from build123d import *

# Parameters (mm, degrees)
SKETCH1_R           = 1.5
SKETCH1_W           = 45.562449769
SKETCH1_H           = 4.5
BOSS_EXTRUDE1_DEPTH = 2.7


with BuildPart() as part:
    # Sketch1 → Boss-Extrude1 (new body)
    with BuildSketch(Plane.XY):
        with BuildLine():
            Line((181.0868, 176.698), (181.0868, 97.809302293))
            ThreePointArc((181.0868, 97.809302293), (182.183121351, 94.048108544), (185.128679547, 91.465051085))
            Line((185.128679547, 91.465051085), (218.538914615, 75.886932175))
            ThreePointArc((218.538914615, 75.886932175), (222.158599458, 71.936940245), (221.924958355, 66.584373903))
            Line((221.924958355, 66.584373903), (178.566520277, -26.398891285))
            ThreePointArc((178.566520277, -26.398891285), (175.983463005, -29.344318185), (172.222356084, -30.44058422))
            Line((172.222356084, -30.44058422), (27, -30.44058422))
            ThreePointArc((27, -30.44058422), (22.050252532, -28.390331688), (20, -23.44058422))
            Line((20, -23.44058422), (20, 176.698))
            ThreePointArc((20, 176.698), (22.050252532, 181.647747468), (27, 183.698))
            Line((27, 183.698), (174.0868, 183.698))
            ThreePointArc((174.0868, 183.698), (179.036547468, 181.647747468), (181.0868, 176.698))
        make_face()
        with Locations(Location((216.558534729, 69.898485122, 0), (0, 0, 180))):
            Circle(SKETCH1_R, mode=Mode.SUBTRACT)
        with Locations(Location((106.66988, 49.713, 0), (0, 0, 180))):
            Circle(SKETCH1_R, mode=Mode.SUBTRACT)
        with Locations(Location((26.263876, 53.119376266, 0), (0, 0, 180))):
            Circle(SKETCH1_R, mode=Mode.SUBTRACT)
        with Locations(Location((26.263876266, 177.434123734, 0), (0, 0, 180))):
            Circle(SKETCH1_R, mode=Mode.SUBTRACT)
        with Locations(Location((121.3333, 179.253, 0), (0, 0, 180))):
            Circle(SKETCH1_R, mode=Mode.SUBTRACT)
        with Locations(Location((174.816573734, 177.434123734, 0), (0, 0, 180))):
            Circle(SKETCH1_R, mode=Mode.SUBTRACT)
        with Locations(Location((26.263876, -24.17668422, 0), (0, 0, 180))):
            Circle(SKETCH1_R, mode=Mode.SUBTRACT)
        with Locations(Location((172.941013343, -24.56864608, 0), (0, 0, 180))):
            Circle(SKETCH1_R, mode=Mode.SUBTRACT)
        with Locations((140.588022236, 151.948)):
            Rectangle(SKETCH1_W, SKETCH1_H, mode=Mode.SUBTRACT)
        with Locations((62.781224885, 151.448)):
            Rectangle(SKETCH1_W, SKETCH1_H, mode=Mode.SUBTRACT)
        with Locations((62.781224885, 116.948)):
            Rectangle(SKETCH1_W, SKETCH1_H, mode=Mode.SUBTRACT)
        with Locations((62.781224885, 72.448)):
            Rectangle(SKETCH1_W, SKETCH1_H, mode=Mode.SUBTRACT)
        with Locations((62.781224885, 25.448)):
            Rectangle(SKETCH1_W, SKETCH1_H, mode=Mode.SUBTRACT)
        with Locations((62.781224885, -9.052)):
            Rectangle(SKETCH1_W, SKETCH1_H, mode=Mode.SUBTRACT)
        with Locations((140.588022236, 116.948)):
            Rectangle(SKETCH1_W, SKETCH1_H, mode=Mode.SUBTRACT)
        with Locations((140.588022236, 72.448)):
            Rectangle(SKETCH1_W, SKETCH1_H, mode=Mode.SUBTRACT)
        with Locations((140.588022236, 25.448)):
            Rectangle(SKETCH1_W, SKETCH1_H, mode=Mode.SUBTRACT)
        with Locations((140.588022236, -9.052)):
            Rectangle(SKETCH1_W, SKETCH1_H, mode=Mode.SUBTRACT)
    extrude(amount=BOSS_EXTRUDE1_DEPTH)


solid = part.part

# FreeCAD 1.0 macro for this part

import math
import FreeCAD as App
import Part
import Sketcher

V = App.Vector

doc = App.newDocument("Part")
body = doc.addObject("PartDesign::Body", "Body")

# Sketch on XY plane
sketch1 = body.newObject("Sketcher::SketchObject", "Sketch")
sketch1.AttachmentSupport = (doc.getObject("XY_Plane"), [""])
sketch1.MapMode = "FlatFace"
sketch1.addGeometry([
    Part.LineSegment(V(181.0868, 97.809302, 0), V(181.0868, 176.698, 0)),  # 0
    Part.ArcOfCircle(Part.Circle(V(174.0868, 176.698, 0), V(0, 0, 1), 7), math.radians(0), math.radians(90)),  # 1
    Part.LineSegment(V(174.0868, 183.698, 0), V(27, 183.698, 0)),  # 2
    Part.ArcOfCircle(Part.Circle(V(27, 176.698, 0), V(0, 0, 1), 7), math.radians(90), math.radians(180)),  # 3
    Part.LineSegment(V(20, 176.698, 0), V(20, -23.440584, 0)),  # 4
    Part.ArcOfCircle(Part.Circle(V(27, -23.440584, 0), V(0, 0, 1), 7), math.radians(-180), math.radians(-90)),  # 5
    Part.LineSegment(V(27, -30.440584, 0), V(172.222356, -30.440584, 0)),  # 6
    Part.ArcOfCircle(Part.Circle(V(172.222356, -23.440584, 0), V(0, 0, 1), 7), math.radians(-90), math.radians(-24.999812)),  # 7
    Part.LineSegment(V(178.56652, -26.398891, 0), V(221.924958, 66.584374, 0)),  # 8
    Part.ArcOfCircle(Part.Circle(V(215.580794, 69.542681, 0), V(0, 0, 1), 7), math.radians(-24.999812), math.radians(65.001873)),  # 9
    Part.LineSegment(V(218.538915, 75.886932, 0), V(185.12868, 91.465051, 0)),  # 10
    Part.ArcOfCircle(Part.Circle(V(188.0868, 97.809302, 0), V(0, 0, 1), 7), math.radians(180), math.radians(245.001873)),  # 11
    Part.Circle(V(172.941013, -24.568646, 0), V(0, 0, 1), 1.5),  # 12
    Part.LineSegment(V(117.806797, -11.302, 0), V(117.806797, -6.802, 0)),  # 13
    Part.LineSegment(V(117.806797, -6.802, 0), V(163.369247, -6.802, 0)),  # 14
    Part.LineSegment(V(163.369247, -6.802, 0), V(163.369247, -11.302, 0)),  # 15
    Part.LineSegment(V(163.369247, -11.302, 0), V(117.806797, -11.302, 0)),  # 16
    Part.LineSegment(V(117.806797, 23.198, 0), V(117.806797, 27.698, 0)),  # 17
    Part.LineSegment(V(117.806797, 27.698, 0), V(163.369247, 27.698, 0)),  # 18
    Part.LineSegment(V(163.369247, 27.698, 0), V(163.369247, 23.198, 0)),  # 19
    Part.LineSegment(V(163.369247, 23.198, 0), V(117.806797, 23.198, 0)),  # 20
    Part.Circle(V(216.558535, 69.898485, 0), V(0, 0, 1), 1.5),  # 21
    Part.LineSegment(V(117.806797, 70.198, 0), V(117.806797, 74.698, 0)),  # 22
    Part.LineSegment(V(117.806797, 74.698, 0), V(163.369247, 74.698, 0)),  # 23
    Part.LineSegment(V(163.369247, 74.698, 0), V(163.369247, 70.198, 0)),  # 24
    Part.LineSegment(V(163.369247, 70.198, 0), V(117.806797, 70.198, 0)),  # 25
    Part.LineSegment(V(40, -11.302, 0), V(40, -6.802, 0)),  # 26
    Part.LineSegment(V(40, -6.802, 0), V(85.56245, -6.802, 0)),  # 27
    Part.LineSegment(V(85.56245, -6.802, 0), V(85.56245, -11.302, 0)),  # 28
    Part.LineSegment(V(85.56245, -11.302, 0), V(40, -11.302, 0)),  # 29
    Part.Circle(V(26.263876, -24.176684, 0), V(0, 0, 1), 1.5),  # 30
    Part.LineSegment(V(40, 23.198, 0), V(40, 27.698, 0)),  # 31
    Part.LineSegment(V(40, 27.698, 0), V(85.56245, 27.698, 0)),  # 32
    Part.LineSegment(V(85.56245, 27.698, 0), V(85.56245, 23.198, 0)),  # 33
    Part.LineSegment(V(85.56245, 23.198, 0), V(40, 23.198, 0)),  # 34
    Part.Circle(V(106.66988, 49.713, 0), V(0, 0, 1), 1.5),  # 35
    Part.LineSegment(V(40, 70.198, 0), V(40, 74.698, 0)),  # 36
    Part.LineSegment(V(40, 74.698, 0), V(85.56245, 74.698, 0)),  # 37
    Part.LineSegment(V(85.56245, 74.698, 0), V(85.56245, 70.198, 0)),  # 38
    Part.LineSegment(V(85.56245, 70.198, 0), V(40, 70.198, 0)),  # 39
    Part.Circle(V(26.263876, 53.119376, 0), V(0, 0, 1), 1.5),  # 40
    Part.LineSegment(V(117.806797, 114.698, 0), V(117.806797, 119.198, 0)),  # 41
    Part.LineSegment(V(117.806797, 119.198, 0), V(163.369247, 119.198, 0)),  # 42
    Part.LineSegment(V(163.369247, 119.198, 0), V(163.369247, 114.698, 0)),  # 43
    Part.LineSegment(V(163.369247, 114.698, 0), V(117.806797, 114.698, 0)),  # 44
    Part.Circle(V(174.816574, 177.434124, 0), V(0, 0, 1), 1.5),  # 45
    Part.LineSegment(V(117.806797, 149.698, 0), V(117.806797, 154.198, 0)),  # 46
    Part.LineSegment(V(117.806797, 154.198, 0), V(163.369247, 154.198, 0)),  # 47
    Part.LineSegment(V(163.369247, 154.198, 0), V(163.369247, 149.698, 0)),  # 48
    Part.LineSegment(V(163.369247, 149.698, 0), V(117.806797, 149.698, 0)),  # 49
    Part.LineSegment(V(40, 114.698, 0), V(40, 119.198, 0)),  # 50
    Part.LineSegment(V(40, 119.198, 0), V(85.56245, 119.198, 0)),  # 51
    Part.LineSegment(V(85.56245, 119.198, 0), V(85.56245, 114.698, 0)),  # 52
    Part.LineSegment(V(85.56245, 114.698, 0), V(40, 114.698, 0)),  # 53
    Part.Circle(V(121.3333, 179.253, 0), V(0, 0, 1), 1.5),  # 54
    Part.LineSegment(V(40, 149.198, 0), V(40, 153.698, 0)),  # 55
    Part.LineSegment(V(40, 153.698, 0), V(85.56245, 153.698, 0)),  # 56
    Part.LineSegment(V(85.56245, 153.698, 0), V(85.56245, 149.198, 0)),  # 57
    Part.LineSegment(V(85.56245, 149.198, 0), V(40, 149.198, 0)),  # 58
    Part.Circle(V(26.263876, 177.434124, 0), V(0, 0, 1), 1.5),  # 59
], False)
sketch1.addConstraint([
    Sketcher.Constraint("Tangent", 0, 2, 1, 1),
    Sketcher.Constraint("Tangent", 1, 2, 2, 1),
    Sketcher.Constraint("Tangent", 2, 2, 3, 1),
    Sketcher.Constraint("Tangent", 3, 2, 4, 1),
    Sketcher.Constraint("Tangent", 4, 2, 5, 1),
    Sketcher.Constraint("Tangent", 5, 2, 6, 1),
    Sketcher.Constraint("Tangent", 6, 2, 7, 1),
    Sketcher.Constraint("Tangent", 7, 2, 8, 1),
    Sketcher.Constraint("Tangent", 8, 2, 9, 1),
    Sketcher.Constraint("Tangent", 9, 2, 10, 1),
    Sketcher.Constraint("Tangent", 10, 2, 11, 2),
    Sketcher.Constraint("Tangent", 11, 1, 0, 1),
    Sketcher.Constraint("Coincident", 13, 2, 14, 1),
    Sketcher.Constraint("Coincident", 14, 2, 15, 1),
    Sketcher.Constraint("Coincident", 15, 2, 16, 1),
    Sketcher.Constraint("Coincident", 16, 2, 13, 1),
    Sketcher.Constraint("Coincident", 17, 2, 18, 1),
    Sketcher.Constraint("Coincident", 18, 2, 19, 1),
    Sketcher.Constraint("Coincident", 19, 2, 20, 1),
    Sketcher.Constraint("Coincident", 20, 2, 17, 1),
    Sketcher.Constraint("Coincident", 22, 2, 23, 1),
    Sketcher.Constraint("Coincident", 23, 2, 24, 1),
    Sketcher.Constraint("Coincident", 24, 2, 25, 1),
    Sketcher.Constraint("Coincident", 25, 2, 22, 1),
    Sketcher.Constraint("Coincident", 26, 2, 27, 1),
    Sketcher.Constraint("Coincident", 27, 2, 28, 1),
    Sketcher.Constraint("Coincident", 28, 2, 29, 1),
    Sketcher.Constraint("Coincident", 29, 2, 26, 1),
    Sketcher.Constraint("Coincident", 31, 2, 32, 1),
    Sketcher.Constraint("Coincident", 32, 2, 33, 1),
    Sketcher.Constraint("Coincident", 33, 2, 34, 1),
    Sketcher.Constraint("Coincident", 34, 2, 31, 1),
    Sketcher.Constraint("Coincident", 36, 2, 37, 1),
    Sketcher.Constraint("Coincident", 37, 2, 38, 1),
    Sketcher.Constraint("Coincident", 38, 2, 39, 1),
    Sketcher.Constraint("Coincident", 39, 2, 36, 1),
    Sketcher.Constraint("Coincident", 41, 2, 42, 1),
    Sketcher.Constraint("Coincident", 42, 2, 43, 1),
    Sketcher.Constraint("Coincident", 43, 2, 44, 1),
    Sketcher.Constraint("Coincident", 44, 2, 41, 1),
    Sketcher.Constraint("Coincident", 46, 2, 47, 1),
    Sketcher.Constraint("Coincident", 47, 2, 48, 1),
    Sketcher.Constraint("Coincident", 48, 2, 49, 1),
    Sketcher.Constraint("Coincident", 49, 2, 46, 1),
    Sketcher.Constraint("Coincident", 50, 2, 51, 1),
    Sketcher.Constraint("Coincident", 51, 2, 52, 1),
    Sketcher.Constraint("Coincident", 52, 2, 53, 1),
    Sketcher.Constraint("Coincident", 53, 2, 50, 1),
    Sketcher.Constraint("Coincident", 55, 2, 56, 1),
    Sketcher.Constraint("Coincident", 56, 2, 57, 1),
    Sketcher.Constraint("Coincident", 57, 2, 58, 1),
    Sketcher.Constraint("Coincident", 58, 2, 55, 1),
    Sketcher.Constraint("Vertical", 0),
    Sketcher.Constraint("Horizontal", 2),
    Sketcher.Constraint("Vertical", 4),
    Sketcher.Constraint("Horizontal", 6),
    Sketcher.Constraint("Vertical", 13),
    Sketcher.Constraint("Horizontal", 14),
    Sketcher.Constraint("Vertical", 15),
    Sketcher.Constraint("Horizontal", 16),
    Sketcher.Constraint("Vertical", 17),
    Sketcher.Constraint("Horizontal", 18),
    Sketcher.Constraint("Vertical", 19),
    Sketcher.Constraint("Horizontal", 20),
    Sketcher.Constraint("Vertical", 22),
    Sketcher.Constraint("Horizontal", 23),
    Sketcher.Constraint("Vertical", 24),
    Sketcher.Constraint("Horizontal", 25),
    Sketcher.Constraint("Vertical", 26),
    Sketcher.Constraint("Horizontal", 27),
    Sketcher.Constraint("Vertical", 28),
    Sketcher.Constraint("Horizontal", 29),
    Sketcher.Constraint("Vertical", 31),
    Sketcher.Constraint("Horizontal", 32),
    Sketcher.Constraint("Vertical", 33),
    Sketcher.Constraint("Horizontal", 34),
    Sketcher.Constraint("Vertical", 36),
    Sketcher.Constraint("Horizontal", 37),
    Sketcher.Constraint("Vertical", 38),
    Sketcher.Constraint("Horizontal", 39),
    Sketcher.Constraint("Vertical", 41),
    Sketcher.Constraint("Horizontal", 42),
    Sketcher.Constraint("Vertical", 43),
    Sketcher.Constraint("Horizontal", 44),
    Sketcher.Constraint("Vertical", 46),
    Sketcher.Constraint("Horizontal", 47),
    Sketcher.Constraint("Vertical", 48),
    Sketcher.Constraint("Horizontal", 49),
    Sketcher.Constraint("Vertical", 50),
    Sketcher.Constraint("Horizontal", 51),
    Sketcher.Constraint("Vertical", 52),
    Sketcher.Constraint("Horizontal", 53),
    Sketcher.Constraint("Vertical", 55),
    Sketcher.Constraint("Horizontal", 56),
    Sketcher.Constraint("Vertical", 57),
    Sketcher.Constraint("Horizontal", 58),
    Sketcher.Constraint("Equal", 1, 3),
    Sketcher.Constraint("Equal", 3, 5),
    Sketcher.Constraint("Equal", 5, 7),
    Sketcher.Constraint("Equal", 7, 9),
    Sketcher.Constraint("Equal", 9, 11),
    Sketcher.Constraint("Equal", 12, 21),
    Sketcher.Constraint("Equal", 21, 30),
    Sketcher.Constraint("Equal", 30, 35),
    Sketcher.Constraint("Equal", 35, 40),
    Sketcher.Constraint("Equal", 40, 45),
    Sketcher.Constraint("Equal", 45, 54),
    Sketcher.Constraint("Equal", 54, 59),
    Sketcher.Constraint("Horizontal", 45, 3, 59, 3),
    Sketcher.Constraint("Horizontal", 14, 2, 26, 2),
    Sketcher.Constraint("Horizontal", 16, 2, 28, 2),
    Sketcher.Constraint("Horizontal", 18, 2, 31, 2),
    Sketcher.Constraint("Horizontal", 20, 2, 33, 2),
    Sketcher.Constraint("Horizontal", 23, 2, 36, 2),
    Sketcher.Constraint("Horizontal", 25, 2, 38, 2),
    Sketcher.Constraint("Horizontal", 42, 2, 50, 2),
    Sketcher.Constraint("Horizontal", 44, 2, 52, 2),
    Sketcher.Constraint("Vertical", 30, 3, 40, 3),
    Sketcher.Constraint("Vertical", 40, 3, 59, 3),
    Sketcher.Constraint("Vertical", 16, 2, 17, 2),
    Sketcher.Constraint("Vertical", 15, 2, 18, 2),
    Sketcher.Constraint("Vertical", 20, 2, 22, 2),
    Sketcher.Constraint("Vertical", 19, 2, 23, 2),
    Sketcher.Constraint("Vertical", 29, 2, 31, 2),
    Sketcher.Constraint("Vertical", 28, 2, 32, 2),
    Sketcher.Constraint("Vertical", 34, 2, 36, 2),
    Sketcher.Constraint("Vertical", 33, 2, 37, 2),
    Sketcher.Constraint("Vertical", 25, 2, 41, 2),
    Sketcher.Constraint("Vertical", 24, 2, 42, 2),
    Sketcher.Constraint("Vertical", 44, 2, 46, 2),
    Sketcher.Constraint("Vertical", 43, 2, 47, 2),
    Sketcher.Constraint("Vertical", 39, 2, 50, 2),
    Sketcher.Constraint("Vertical", 38, 2, 51, 2),
    Sketcher.Constraint("Vertical", 53, 2, 55, 2),
    Sketcher.Constraint("Vertical", 52, 2, 56, 2),
    Sketcher.Constraint("Equal", 25, 27),
    Sketcher.Constraint("Equal", 15, 17),
    Sketcher.Constraint("Equal", 19, 22),
    Sketcher.Constraint("Equal", 38, 41),
    Sketcher.Constraint("Equal", 43, 46),
    Sketcher.Constraint("Equal", 52, 55),
    Sketcher.Constraint("Diameter", 12, 3.0),
    Sketcher.Constraint("Radius", 1, 7.0),
    Sketcher.Constraint("DistanceY", 13, 1, 13, 2, 4.5),
    Sketcher.Constraint("DistanceX", -1, 1, 3, 3, 27.0),
    Sketcher.Constraint("DistanceX", -1, 1, 26, 2, 40.0),
    Sketcher.Constraint("DistanceX", 2, 2, 2, 1, 147.0868),
    Sketcher.Constraint("DistanceY", -1, 1, 1, 3, 176.698),
    Sketcher.Constraint("DistanceY", -1, 1, 35, 3, 49.713),
    Sketcher.Constraint("DistanceY", -1, 1, 54, 3, 179.253),
    Sketcher.Constraint("DistanceY", 13, 2, -1, 1, 6.802),
    Sketcher.Constraint("DistanceY", -1, 1, 17, 2, 27.698),
    Sketcher.Constraint("DistanceY", -1, 1, 22, 2, 74.698),
    Sketcher.Constraint("DistanceY", -1, 1, 41, 2, 119.198),
    Sketcher.Constraint("DistanceY", -1, 1, 46, 2, 154.198),
    Sketcher.Constraint("DistanceY", -1, 1, 55, 2, 153.698),
    Sketcher.Constraint("DistanceX", 14, 1, 14, 2, 45.56245),
    Sketcher.Constraint("DistanceX", -1, 1, 54, 3, 121.3333),
    Sketcher.Constraint("DistanceX", 6, 1, 6, 2, 145.222356),
    Sketcher.Constraint("DistanceY", 0, 1, 0, 2, 78.888698),
    Sketcher.Constraint("DistanceY", 4, 2, 4, 1, 200.138584),
    Sketcher.Constraint("DistanceY", -1, 1, 9, 3, 69.542681),
    Sketcher.Constraint("DistanceX", -1, 1, 35, 3, 106.66988),
    Sketcher.Constraint("DistanceX", -1, 1, 7, 2, 178.56652),
    Sketcher.Constraint("DistanceX", -1, 1, 12, 3, 172.941013),
    Sketcher.Constraint("DistanceY", 12, 3, -1, 1, 24.568646),
    Sketcher.Constraint("DistanceX", -1, 1, 21, 3, 216.558535),
    Sketcher.Constraint("DistanceY", -1, 1, 21, 3, 69.898485),
    Sketcher.Constraint("DistanceX", -1, 1, 30, 3, 26.263876),
    Sketcher.Constraint("DistanceY", 30, 3, -1, 1, 24.176684),
    Sketcher.Constraint("DistanceY", -1, 1, 40, 3, 53.119376),
    Sketcher.Constraint("DistanceX", -1, 1, 45, 3, 174.816574),
    Sketcher.Constraint("DistanceY", -1, 1, 45, 3, 177.434124),
    Sketcher.Constraint("DistanceX", -1, 1, 13, 2, 117.806797),
])
pad1 = body.newObject("PartDesign::Pad", "Pad")
pad1.Profile = sketch1
pad1.Length = 2.7

doc.recompute()
